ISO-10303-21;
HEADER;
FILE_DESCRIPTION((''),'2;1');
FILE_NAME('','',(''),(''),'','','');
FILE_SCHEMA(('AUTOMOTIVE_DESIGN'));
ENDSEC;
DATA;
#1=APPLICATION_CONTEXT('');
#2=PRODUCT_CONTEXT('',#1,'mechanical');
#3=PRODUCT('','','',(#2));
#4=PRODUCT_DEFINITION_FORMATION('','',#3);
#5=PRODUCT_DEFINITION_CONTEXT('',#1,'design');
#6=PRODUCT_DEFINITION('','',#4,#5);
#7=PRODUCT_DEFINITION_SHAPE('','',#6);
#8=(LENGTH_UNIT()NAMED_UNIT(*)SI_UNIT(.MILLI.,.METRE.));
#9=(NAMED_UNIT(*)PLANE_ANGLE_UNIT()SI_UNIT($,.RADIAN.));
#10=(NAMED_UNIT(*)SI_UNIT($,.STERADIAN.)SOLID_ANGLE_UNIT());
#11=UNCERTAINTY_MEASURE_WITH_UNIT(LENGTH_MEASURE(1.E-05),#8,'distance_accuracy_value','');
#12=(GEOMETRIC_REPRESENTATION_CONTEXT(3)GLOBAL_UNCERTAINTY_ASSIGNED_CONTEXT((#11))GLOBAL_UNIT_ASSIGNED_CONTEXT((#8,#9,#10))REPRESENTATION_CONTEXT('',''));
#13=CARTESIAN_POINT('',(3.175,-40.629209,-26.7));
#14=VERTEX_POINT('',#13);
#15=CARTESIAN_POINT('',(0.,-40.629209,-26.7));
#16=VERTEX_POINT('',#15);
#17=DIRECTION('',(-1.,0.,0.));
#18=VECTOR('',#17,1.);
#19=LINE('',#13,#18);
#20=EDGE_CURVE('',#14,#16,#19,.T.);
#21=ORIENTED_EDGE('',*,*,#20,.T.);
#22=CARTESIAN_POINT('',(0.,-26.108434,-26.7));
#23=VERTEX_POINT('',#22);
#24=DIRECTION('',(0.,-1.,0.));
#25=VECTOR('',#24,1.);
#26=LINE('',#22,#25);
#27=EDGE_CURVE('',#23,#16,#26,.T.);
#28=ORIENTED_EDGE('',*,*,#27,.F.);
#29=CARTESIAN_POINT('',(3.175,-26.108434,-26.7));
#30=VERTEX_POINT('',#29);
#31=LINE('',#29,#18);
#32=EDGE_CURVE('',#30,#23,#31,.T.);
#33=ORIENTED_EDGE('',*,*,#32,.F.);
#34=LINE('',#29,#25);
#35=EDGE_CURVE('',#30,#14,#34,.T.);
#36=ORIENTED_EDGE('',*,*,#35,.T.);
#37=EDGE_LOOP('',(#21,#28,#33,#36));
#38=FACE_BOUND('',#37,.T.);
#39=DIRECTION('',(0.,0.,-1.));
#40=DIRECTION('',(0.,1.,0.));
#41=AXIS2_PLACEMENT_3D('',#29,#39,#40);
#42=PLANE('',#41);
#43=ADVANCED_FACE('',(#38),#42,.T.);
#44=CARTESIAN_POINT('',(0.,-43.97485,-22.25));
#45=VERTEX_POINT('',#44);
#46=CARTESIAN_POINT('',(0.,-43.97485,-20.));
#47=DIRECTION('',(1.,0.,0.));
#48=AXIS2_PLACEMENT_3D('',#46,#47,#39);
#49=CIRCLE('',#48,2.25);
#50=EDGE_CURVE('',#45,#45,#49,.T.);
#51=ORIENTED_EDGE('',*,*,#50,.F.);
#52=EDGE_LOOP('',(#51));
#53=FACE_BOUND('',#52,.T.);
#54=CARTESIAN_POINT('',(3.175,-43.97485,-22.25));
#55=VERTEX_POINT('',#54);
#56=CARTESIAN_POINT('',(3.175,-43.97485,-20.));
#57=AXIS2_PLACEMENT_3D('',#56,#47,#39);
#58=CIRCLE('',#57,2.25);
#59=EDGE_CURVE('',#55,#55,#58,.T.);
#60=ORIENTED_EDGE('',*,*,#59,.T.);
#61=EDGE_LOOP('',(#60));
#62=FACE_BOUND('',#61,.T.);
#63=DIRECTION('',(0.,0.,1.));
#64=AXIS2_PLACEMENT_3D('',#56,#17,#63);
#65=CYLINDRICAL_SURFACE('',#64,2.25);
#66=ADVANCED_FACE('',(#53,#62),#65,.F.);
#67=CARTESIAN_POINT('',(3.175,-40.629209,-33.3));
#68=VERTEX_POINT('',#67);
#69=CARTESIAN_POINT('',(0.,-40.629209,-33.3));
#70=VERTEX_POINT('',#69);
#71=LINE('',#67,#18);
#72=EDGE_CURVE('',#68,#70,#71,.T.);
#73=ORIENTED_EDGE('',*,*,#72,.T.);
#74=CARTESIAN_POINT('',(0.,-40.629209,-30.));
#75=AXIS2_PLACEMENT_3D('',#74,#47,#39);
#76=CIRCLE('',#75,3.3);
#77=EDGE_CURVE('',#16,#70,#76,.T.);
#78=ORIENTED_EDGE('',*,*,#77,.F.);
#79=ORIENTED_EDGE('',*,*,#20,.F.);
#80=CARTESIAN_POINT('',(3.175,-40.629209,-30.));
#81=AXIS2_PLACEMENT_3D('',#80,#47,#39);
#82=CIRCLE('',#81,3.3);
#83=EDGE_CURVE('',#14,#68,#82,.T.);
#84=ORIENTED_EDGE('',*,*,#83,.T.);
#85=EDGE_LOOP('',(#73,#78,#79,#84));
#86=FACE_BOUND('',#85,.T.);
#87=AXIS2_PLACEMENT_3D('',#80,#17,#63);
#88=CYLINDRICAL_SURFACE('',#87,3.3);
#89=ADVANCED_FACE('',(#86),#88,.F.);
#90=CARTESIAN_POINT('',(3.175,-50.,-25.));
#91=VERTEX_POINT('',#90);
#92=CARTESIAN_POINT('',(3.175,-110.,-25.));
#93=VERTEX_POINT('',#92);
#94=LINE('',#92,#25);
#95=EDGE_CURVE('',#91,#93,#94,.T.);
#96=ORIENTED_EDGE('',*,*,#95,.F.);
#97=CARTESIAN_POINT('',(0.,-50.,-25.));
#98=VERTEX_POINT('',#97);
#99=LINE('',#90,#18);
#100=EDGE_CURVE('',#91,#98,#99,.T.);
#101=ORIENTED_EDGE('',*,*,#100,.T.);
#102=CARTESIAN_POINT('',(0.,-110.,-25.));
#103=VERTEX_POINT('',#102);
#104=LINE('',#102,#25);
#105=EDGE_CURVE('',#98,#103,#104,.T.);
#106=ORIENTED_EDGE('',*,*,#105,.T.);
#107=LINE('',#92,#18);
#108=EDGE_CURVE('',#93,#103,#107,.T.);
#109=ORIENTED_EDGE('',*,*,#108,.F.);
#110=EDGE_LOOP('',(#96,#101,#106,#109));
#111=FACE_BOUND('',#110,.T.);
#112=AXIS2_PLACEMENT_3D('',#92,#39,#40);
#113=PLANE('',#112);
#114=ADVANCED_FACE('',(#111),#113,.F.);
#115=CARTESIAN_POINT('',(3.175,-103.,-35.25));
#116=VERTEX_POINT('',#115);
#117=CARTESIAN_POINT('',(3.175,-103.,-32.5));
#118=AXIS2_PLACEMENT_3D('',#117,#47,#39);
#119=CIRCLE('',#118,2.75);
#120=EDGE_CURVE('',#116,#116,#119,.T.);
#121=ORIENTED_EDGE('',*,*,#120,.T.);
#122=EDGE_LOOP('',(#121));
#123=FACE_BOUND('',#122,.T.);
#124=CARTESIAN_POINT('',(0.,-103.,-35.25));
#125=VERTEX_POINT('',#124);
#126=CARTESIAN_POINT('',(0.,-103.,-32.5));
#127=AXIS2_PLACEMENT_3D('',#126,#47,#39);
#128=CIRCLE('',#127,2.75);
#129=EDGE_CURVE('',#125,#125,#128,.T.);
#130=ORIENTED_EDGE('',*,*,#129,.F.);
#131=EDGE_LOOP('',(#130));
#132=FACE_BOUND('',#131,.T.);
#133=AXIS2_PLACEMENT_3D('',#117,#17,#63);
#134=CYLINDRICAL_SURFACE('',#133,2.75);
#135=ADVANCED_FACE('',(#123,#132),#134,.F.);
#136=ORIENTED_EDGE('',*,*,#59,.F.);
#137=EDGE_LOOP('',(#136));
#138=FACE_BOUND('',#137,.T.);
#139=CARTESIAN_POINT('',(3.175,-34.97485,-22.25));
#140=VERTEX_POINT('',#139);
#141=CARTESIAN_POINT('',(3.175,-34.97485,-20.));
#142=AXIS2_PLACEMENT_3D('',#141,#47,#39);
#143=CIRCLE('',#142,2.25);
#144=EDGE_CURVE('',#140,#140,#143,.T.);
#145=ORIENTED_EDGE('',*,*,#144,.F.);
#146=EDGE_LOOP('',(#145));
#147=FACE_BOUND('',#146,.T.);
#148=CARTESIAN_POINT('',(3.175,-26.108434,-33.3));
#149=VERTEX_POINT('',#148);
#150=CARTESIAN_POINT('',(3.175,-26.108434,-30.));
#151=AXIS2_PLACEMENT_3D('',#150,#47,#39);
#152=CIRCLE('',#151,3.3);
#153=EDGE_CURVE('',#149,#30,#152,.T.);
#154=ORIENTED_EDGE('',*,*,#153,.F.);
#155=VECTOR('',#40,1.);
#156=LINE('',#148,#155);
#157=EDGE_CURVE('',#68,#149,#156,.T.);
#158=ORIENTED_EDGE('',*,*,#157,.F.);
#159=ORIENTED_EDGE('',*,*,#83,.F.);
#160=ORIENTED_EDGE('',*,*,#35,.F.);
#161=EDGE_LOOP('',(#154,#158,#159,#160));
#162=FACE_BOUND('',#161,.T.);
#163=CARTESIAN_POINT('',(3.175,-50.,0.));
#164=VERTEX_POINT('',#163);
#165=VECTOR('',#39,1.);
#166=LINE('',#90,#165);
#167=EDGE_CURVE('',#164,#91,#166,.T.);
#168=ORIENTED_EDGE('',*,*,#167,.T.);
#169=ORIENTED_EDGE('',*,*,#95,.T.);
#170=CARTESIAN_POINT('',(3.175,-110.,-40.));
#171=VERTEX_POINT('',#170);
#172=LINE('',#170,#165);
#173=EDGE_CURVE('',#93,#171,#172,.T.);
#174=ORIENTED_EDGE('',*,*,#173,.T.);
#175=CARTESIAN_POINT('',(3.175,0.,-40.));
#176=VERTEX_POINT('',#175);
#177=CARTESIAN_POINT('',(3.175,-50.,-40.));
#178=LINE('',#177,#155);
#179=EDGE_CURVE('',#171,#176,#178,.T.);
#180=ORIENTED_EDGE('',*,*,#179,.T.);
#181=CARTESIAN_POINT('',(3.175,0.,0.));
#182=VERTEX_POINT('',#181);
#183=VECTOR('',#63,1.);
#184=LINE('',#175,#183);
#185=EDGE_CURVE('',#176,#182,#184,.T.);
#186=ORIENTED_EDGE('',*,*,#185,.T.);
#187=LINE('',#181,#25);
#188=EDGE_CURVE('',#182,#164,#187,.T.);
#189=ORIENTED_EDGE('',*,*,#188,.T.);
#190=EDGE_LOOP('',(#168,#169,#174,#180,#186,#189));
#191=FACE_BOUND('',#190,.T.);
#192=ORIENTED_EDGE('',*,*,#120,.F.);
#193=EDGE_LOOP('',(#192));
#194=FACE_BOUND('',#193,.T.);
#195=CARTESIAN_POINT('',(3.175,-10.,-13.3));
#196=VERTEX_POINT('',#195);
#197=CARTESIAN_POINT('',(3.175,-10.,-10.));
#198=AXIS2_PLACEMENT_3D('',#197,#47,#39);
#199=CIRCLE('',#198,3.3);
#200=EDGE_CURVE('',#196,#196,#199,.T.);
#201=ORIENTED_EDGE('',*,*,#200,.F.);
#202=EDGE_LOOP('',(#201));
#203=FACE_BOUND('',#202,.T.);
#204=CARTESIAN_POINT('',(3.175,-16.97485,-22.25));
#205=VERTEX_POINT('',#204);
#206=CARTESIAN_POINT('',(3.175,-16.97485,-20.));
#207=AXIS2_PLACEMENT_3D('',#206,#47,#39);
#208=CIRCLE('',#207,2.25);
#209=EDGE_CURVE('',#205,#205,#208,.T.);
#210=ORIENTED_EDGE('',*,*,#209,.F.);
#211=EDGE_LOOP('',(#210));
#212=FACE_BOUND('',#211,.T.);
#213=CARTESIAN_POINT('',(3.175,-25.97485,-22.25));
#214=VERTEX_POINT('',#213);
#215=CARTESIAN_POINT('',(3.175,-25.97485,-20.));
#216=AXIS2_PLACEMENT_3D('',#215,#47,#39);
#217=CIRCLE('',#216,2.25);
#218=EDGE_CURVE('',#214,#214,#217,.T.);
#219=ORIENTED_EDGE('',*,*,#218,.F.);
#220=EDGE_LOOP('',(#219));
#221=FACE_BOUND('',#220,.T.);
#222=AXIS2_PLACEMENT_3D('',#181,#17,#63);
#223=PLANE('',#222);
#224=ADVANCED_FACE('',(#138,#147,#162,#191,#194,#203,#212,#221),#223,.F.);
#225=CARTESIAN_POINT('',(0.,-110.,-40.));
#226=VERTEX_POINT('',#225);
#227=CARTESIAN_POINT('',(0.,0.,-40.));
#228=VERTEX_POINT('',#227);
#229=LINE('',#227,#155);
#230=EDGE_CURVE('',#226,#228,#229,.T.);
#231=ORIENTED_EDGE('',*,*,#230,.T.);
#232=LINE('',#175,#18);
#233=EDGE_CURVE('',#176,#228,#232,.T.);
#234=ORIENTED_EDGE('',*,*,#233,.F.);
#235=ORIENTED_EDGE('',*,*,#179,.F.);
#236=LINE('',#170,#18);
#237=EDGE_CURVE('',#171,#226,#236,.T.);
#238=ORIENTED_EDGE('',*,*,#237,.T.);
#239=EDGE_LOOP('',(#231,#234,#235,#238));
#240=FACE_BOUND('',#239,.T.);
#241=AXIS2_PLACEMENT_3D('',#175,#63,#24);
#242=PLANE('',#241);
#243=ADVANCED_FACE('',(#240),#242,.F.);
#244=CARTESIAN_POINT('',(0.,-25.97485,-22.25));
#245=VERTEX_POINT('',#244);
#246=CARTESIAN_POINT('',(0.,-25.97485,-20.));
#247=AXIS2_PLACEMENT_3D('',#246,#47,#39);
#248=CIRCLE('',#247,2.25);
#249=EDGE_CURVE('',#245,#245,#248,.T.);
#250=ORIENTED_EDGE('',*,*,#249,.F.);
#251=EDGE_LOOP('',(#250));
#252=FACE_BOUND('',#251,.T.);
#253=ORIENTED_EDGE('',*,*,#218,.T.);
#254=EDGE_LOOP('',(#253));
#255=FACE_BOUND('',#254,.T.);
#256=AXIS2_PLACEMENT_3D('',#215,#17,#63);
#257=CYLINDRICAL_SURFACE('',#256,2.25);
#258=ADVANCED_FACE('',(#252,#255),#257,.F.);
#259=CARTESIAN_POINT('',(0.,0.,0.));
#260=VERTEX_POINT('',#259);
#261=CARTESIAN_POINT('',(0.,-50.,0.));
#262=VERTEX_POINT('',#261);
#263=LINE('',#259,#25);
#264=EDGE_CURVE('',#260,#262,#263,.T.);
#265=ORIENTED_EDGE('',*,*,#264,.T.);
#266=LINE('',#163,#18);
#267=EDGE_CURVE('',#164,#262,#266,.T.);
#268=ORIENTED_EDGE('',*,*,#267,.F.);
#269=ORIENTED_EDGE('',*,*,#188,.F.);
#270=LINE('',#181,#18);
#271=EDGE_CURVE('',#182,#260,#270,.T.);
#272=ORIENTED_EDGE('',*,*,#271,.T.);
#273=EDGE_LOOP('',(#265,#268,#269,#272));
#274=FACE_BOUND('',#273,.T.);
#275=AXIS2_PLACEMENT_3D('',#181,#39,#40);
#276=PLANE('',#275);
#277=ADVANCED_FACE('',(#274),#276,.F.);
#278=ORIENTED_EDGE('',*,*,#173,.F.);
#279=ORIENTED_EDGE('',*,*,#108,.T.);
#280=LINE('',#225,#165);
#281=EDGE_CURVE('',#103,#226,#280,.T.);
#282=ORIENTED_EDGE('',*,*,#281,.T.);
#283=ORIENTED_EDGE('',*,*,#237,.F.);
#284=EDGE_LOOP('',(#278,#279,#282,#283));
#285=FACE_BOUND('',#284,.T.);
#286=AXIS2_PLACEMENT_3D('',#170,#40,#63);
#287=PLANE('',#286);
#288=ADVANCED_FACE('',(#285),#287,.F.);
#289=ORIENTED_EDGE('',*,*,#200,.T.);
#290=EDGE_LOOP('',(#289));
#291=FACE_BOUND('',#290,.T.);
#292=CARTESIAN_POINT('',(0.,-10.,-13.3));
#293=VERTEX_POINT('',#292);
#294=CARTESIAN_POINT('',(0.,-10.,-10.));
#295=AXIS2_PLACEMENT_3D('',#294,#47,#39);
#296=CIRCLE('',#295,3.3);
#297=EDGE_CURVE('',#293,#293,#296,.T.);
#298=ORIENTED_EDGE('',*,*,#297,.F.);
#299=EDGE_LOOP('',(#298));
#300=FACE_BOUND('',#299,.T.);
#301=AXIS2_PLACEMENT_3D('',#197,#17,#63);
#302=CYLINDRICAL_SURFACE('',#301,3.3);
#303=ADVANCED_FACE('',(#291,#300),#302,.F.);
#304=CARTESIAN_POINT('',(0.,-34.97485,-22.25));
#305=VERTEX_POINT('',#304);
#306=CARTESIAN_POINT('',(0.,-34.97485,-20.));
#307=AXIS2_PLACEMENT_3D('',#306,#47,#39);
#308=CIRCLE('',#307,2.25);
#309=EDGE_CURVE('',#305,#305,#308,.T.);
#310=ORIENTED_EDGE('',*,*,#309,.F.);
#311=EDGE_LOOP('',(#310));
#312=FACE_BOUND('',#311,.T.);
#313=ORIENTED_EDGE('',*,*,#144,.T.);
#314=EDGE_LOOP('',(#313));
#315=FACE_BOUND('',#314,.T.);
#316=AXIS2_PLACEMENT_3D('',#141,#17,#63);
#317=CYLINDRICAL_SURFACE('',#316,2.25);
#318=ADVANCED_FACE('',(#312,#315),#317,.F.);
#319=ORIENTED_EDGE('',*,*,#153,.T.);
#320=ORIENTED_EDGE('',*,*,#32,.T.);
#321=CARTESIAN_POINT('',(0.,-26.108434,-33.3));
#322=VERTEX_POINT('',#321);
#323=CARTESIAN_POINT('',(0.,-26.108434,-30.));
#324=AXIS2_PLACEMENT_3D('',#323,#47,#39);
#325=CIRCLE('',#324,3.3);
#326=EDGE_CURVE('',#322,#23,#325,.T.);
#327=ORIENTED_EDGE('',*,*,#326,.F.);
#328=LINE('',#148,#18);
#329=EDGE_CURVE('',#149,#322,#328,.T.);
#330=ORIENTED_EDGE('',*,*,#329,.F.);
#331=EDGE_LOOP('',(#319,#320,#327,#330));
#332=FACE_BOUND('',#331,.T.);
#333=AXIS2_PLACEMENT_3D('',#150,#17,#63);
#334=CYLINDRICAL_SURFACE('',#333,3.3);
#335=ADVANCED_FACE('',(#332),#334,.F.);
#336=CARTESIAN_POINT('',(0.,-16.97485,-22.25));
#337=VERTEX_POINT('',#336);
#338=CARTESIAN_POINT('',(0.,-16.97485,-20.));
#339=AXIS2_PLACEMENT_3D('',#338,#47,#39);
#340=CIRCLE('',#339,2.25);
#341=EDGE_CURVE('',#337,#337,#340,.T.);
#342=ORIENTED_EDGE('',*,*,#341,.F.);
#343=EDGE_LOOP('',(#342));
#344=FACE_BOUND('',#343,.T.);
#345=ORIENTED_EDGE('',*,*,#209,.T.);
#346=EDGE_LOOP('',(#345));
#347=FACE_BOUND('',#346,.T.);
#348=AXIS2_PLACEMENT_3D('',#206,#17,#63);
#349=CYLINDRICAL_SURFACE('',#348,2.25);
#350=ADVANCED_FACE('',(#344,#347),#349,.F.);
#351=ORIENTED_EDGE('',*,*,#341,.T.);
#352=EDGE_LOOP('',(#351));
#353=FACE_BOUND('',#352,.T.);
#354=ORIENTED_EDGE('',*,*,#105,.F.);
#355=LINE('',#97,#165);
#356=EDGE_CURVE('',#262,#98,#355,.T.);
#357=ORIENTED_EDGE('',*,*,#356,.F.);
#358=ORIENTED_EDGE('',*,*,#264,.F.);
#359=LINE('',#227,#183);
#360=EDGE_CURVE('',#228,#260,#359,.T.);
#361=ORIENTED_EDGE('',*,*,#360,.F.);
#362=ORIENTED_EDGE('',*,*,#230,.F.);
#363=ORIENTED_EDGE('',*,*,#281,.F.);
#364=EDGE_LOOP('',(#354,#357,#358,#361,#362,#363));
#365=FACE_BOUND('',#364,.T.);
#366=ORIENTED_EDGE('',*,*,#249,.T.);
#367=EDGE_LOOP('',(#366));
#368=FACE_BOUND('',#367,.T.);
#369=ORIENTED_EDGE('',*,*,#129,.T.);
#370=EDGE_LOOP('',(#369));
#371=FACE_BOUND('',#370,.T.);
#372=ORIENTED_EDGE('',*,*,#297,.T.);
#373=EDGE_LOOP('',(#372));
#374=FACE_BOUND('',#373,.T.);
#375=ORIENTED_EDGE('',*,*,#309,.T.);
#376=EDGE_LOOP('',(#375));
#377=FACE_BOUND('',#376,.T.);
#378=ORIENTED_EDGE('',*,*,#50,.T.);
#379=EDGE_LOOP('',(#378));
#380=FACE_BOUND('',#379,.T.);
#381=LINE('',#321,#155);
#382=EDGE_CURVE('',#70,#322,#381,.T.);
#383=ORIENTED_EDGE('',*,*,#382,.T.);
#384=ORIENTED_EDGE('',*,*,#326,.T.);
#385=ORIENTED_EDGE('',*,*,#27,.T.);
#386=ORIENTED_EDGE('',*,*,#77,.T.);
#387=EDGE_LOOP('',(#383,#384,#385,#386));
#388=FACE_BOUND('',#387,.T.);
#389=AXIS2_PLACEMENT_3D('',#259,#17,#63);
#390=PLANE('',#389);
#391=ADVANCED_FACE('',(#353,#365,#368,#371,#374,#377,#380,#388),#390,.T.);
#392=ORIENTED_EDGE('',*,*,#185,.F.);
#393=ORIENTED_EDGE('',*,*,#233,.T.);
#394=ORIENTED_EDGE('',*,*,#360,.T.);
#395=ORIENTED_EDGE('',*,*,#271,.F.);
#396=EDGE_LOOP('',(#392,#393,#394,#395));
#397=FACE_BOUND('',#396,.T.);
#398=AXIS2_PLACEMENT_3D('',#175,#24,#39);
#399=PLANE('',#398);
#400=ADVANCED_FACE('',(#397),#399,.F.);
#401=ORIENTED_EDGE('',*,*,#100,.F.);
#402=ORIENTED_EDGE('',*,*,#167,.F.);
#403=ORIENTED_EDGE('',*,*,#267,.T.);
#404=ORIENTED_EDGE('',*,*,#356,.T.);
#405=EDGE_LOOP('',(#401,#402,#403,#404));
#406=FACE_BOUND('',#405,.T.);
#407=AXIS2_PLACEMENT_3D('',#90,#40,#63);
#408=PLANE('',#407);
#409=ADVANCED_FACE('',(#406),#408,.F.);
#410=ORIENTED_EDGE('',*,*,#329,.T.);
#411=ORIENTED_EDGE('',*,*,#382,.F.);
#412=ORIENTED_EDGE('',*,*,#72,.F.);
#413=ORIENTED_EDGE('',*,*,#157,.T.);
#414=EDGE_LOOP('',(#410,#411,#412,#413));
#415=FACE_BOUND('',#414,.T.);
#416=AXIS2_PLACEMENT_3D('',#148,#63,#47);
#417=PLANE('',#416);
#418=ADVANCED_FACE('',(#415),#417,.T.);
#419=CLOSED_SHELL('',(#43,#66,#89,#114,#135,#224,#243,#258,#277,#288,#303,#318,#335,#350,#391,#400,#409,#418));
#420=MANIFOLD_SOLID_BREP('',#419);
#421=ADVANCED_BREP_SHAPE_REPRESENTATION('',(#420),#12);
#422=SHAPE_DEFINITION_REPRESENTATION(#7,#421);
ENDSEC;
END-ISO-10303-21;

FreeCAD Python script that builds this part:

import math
import FreeCAD as App
import Part
import Sketcher

V = App.Vector
Q = App.Units.Quantity


def add_polygon(sketch, points):
    """Adds a closed chain of lines whose ends are joined by coincident constraints."""
    first, n = sketch.GeometryCount, len(points)
    for a, b in zip(points, points[1:] + points[:1]):
        sketch.addGeometry(Part.LineSegment(App.Vector(*a, 0), App.Vector(*b, 0)), False)
    for i in range(n):
        sketch.addConstraint(Sketcher.Constraint("Coincident", first + i, 2, first + (i + 1) % n, 1))

doc = App.newDocument("Part")
params = doc.addObject("Spreadsheet::Sheet", "Params")
for row, (alias, value) in enumerate([
    ("sketch1_diameter", "5.5 mm"),
    ("sketch1_diameter2", "4.5 mm"),
    ("sketch1_diameter3", "6.6 mm"),
    ("sketch1_width", "50 mm"),
    ("sketch1_width2", "60 mm"),
    ("pad1_length", "3.175 mm"),
], start=1):
    params.set(f"A{row}", alias)
    params.set(f"B{row}", "=" + value)
    params.setAlias(f"B{row}", alias)

body = doc.addObject("PartDesign::Body", "Body")

sketch1 = body.newObject("Sketcher::SketchObject", "Sketch")
sketch1.AttachmentSupport = (doc.getObject("YZ_Plane"), [""])
sketch1.MapMode = "FlatFace"
add_polygon(sketch1, [(0, -40), (0, 0), (-50, 0), (-50, -25), (-110, -25), (-110, -40)])
sketch1.addGeometry(Part.Circle(V(-103, -32.5, 0), V(0, 0, 1), 2.8), False)
sketch1.addGeometry(Part.Circle(V(-44, -20, 0), V(0, 0, 1), 2.2), False)
sketch1.addGeometry(Part.Circle(V(-35, -20, 0), V(0, 0, 1), 2.2), False)
sketch1.addGeometry(Part.Circle(V(-10, -10, 0), V(0, 0, 1), 3.3), False)
sketch1.addGeometry(Part.Circle(V(-26, -20, 0), V(0, 0, 1), 2.2), False)
sketch1.addGeometry(Part.Circle(V(-17, -20, 0), V(0, 0, 1), 2.2), False)
sketch1.addGeometry(Part.ArcOfCircle(Part.Circle(V(-26.1, -30, 0), V(0, 0, 1), 3.3), math.radians(-90), math.radians(90)), False)
sketch1.addGeometry(Part.LineSegment(V(-26.1, -33.3, 0), V(-40.6, -33.3, 0)), False)
sketch1.addGeometry(Part.ArcOfCircle(Part.Circle(V(-40.6, -30, 0), V(0, 0, 1), 3.3), math.radians(90), math.radians(270)), False)
sketch1.addGeometry(Part.LineSegment(V(-40.6, -26.7, 0), V(-26.1, -26.7, 0)), False)
sketch1.addConstraint(Sketcher.Constraint("Tangent", 12, 1, 13, 1))
sketch1.addConstraint(Sketcher.Constraint("Tangent", 13, 2, 14, 2))
sketch1.addConstraint(Sketcher.Constraint("Tangent", 14, 1, 15, 1))
sketch1.addConstraint(Sketcher.Constraint("Tangent", 15, 2, 12, 2))
sketch1.addConstraint(Sketcher.Constraint("Vertical", 0))
sketch1.addConstraint(Sketcher.Constraint("Horizontal", 1))
sketch1.addConstraint(Sketcher.Constraint("Vertical", 2))
sketch1.addConstraint(Sketcher.Constraint("Horizontal", 3))
sketch1.addConstraint(Sketcher.Constraint("Vertical", 4))
sketch1.addConstraint(Sketcher.Constraint("Horizontal", 5))
sketch1.addConstraint(Sketcher.Constraint("Horizontal", 13))
sketch1.addConstraint(Sketcher.Constraint("Horizontal", 15))
sketch1.addConstraint(Sketcher.Constraint("Coincident", 0, 2, -1, 1))
sketch1.addConstraint(Sketcher.Constraint("Equal", 7, 8))
sketch1.addConstraint(Sketcher.Constraint("Equal", 8, 10))
sketch1.addConstraint(Sketcher.Constraint("Equal", 10, 11))
sketch1.addConstraint(Sketcher.Constraint("Equal", 9, 12))
sketch1.addConstraint(Sketcher.Constraint("Horizontal", 7, 3, 8, 3))
sketch1.addConstraint(Sketcher.Constraint("Horizontal", 8, 3, 10, 3))
sketch1.addConstraint(Sketcher.Constraint("Horizontal", 10, 3, 11, 3))
sketch1.addConstraint(Sketcher.Constraint("Diameter", 6, Q("5.5 mm")))
sketch1.addConstraint(Sketcher.Constraint("Diameter", 7, Q("4.5 mm")))
sketch1.addConstraint(Sketcher.Constraint("Diameter", 9, Q("6.6 mm")))
sketch1.addConstraint(Sketcher.Constraint("DistanceX", 1, 2, 1, 1, Q("50 mm")))
sketch1.addConstraint(Sketcher.Constraint("DistanceX", 3, 2, 3, 1, Q("60 mm")))
sketch1.addConstraint(Sketcher.Constraint("DistanceY", 0, 1, 0, 2, Q("40 mm")))
sketch1.addConstraint(Sketcher.Constraint("DistanceY", 2, 2, 2, 1, Q("25 mm")))
sketch1.addConstraint(Sketcher.Constraint("DistanceX", 6, 3, -1, 1, Q("103 mm")))
sketch1.addConstraint(Sketcher.Constraint("DistanceY", 7, 3, -1, 1, Q("20 mm")))
sketch1.addConstraint(Sketcher.Constraint("DistanceX", 9, 3, -1, 1, Q("10 mm")))
sketch1.addConstraint(Sketcher.Constraint("DistanceY", 9, 3, -1, 1, Q("10 mm")))
sketch1.addConstraint(Sketcher.Constraint("DistanceY", 12, 3, -1, 1, Q("30 mm")))
sketch1.addConstraint(Sketcher.Constraint("DistanceX", 7, 3, 8, 3, Q("9 mm")))
sketch1.addConstraint(Sketcher.Constraint("DistanceX", 8, 3, 10, 3, Q("9 mm")))
sketch1.addConstraint(Sketcher.Constraint("DistanceX", 10, 3, 11, 3, Q("9 mm")))
sketch1.addConstraint(Sketcher.Constraint("DistanceY", 6, 3, -1, 1, Q("32.5 mm")))
sketch1.addConstraint(Sketcher.Constraint("DistanceX", 13, 2, 13, 1, Q("14.520775 mm")))
sketch1.addConstraint(Sketcher.Constraint("DistanceX", 7, 3, -1, 1, Q("43.97485 mm")))
sketch1.addConstraint(Sketcher.Constraint("DistanceX", 14, 3, -1, 1, Q("40.629209 mm")))
sketch1.setExpression("Constraints[26]", "Params.sketch1_diameter")
sketch1.setExpression("Constraints[27]", "Params.sketch1_diameter2")
sketch1.setExpression("Constraints[28]", "Params.sketch1_diameter3")
sketch1.setExpression("Constraints[29]", "Params.sketch1_width")
sketch1.setExpression("Constraints[30]", "Params.sketch1_width2")
pad1 = body.newObject("PartDesign::Pad", "Pad")
pad1.Profile = sketch1
pad1.setExpression("Length", "Params.pad1_length")

doc.recompute()
